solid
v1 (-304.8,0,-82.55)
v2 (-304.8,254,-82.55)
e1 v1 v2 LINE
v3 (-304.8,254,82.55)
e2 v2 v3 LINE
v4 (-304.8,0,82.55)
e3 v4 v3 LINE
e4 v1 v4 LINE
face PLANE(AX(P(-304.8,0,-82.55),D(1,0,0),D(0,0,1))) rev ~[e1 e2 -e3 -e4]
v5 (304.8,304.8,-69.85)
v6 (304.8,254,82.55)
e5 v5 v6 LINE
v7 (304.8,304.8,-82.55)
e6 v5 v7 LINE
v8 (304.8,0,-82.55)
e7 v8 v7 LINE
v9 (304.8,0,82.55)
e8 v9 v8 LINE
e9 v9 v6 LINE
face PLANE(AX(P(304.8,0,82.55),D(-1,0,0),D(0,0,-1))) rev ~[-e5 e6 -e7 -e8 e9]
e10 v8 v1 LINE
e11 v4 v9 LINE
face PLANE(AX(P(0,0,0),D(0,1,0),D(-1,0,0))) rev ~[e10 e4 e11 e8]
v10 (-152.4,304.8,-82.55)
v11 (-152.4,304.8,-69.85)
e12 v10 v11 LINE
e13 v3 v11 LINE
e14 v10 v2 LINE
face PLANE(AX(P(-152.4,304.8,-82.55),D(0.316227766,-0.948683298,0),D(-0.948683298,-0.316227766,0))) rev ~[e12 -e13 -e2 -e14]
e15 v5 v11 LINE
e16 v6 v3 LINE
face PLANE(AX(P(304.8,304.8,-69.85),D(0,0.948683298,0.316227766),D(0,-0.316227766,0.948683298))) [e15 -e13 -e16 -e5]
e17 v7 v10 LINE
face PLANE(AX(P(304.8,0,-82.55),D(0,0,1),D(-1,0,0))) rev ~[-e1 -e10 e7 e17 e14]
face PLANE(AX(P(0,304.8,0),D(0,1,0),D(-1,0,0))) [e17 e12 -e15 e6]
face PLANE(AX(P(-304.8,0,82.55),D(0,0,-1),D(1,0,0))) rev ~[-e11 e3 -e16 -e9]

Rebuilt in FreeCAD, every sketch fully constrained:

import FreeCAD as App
import Part
import Sketcher
from FreeCAD import Vector
Q = App.Units.Quantity


def add_polygon(sketch, points):
    """Adds a closed chain of lines whose ends are joined by coincident constraints."""
    first, n = sketch.GeometryCount, len(points)
    for a, b in zip(points, points[1:] + points[:1]):
        sketch.addGeometry(Part.LineSegment(App.Vector(*a, 0), App.Vector(*b, 0)), False)
    for i in range(n):
        sketch.addConstraint(Sketcher.Constraint("Coincident", first + i, 2, first + (i + 1) % n, 1))

doc = App.newDocument("Part")
body = doc.addObject("PartDesign::Body", "Body")

sketch1 = body.newObject("Sketcher::SketchObject", "Sketch")
sketch1.AttachmentSupport = (doc.getObject("XZ_Plane"), [""])
sketch1.MapMode = "FlatFace"
add_polygon(sketch1, [(305, 83), (305, -83), (-305, -83), (-305, 83)])
sketch1.addConstraint(Sketcher.Constraint("Vertical", 0))
sketch1.addConstraint(Sketcher.Constraint("Horizontal", 1))
sketch1.addConstraint(Sketcher.Constraint("Vertical", 2))
sketch1.addConstraint(Sketcher.Constraint("Horizontal", 3))
sketch1.addConstraint(Sketcher.Constraint("Symmetric", 0, 2, 2, 2, -1, 1))
sketch1.addConstraint(Sketcher.Constraint("DistanceX", 1, 2, 1, 1, Q("24 in")))
sketch1.addConstraint(Sketcher.Constraint("DistanceY", 0, 2, 0, 1, Q("6.5 in")))
pad1 = body.newObject("PartDesign::Pad", "Pad")
pad1.Profile = sketch1
pad1.Length = Q("12 in")
pad1.Reversed = True

sketch2 = body.newObject("Sketcher::SketchObject", "Sketch001")
sketch2.AttachmentSupport = (doc.getObject("YZ_Plane"), [""])
sketch2.MapMode = "FlatFace"
sketch2.AttachmentOffset = App.Placement(Vector(0, 0, 12 * 25.4), App.Rotation())
add_polygon(sketch2, [(254, 83), (305, -70), (305, 83)])
sketch2.addConstraint(Sketcher.Constraint("Vertical", 1))
sketch2.addConstraint(Sketcher.Constraint("Horizontal", 2))
sketch2.addConstraint(Sketcher.Constraint("DistanceX", 2, 2, 2, 1, Q("2 in")))
sketch2.addConstraint(Sketcher.Constraint("DistanceY", 1, 1, 1, 2, Q("6 in")))
sketch2.addConstraint(Sketcher.Constraint("DistanceX", -1, 1, 0, 2, Q("12 in")))
sketch2.addConstraint(Sketcher.Constraint("DistanceY", 0, 2, -1, 1, Q("2.75 in")))
pocket1 = body.newObject("PartDesign::Pocket", "Pocket")
pocket1.Profile = sketch2
pocket1.Type = "ThroughAll"

sketch3 = body.newObject("Sketcher::SketchObject", "Sketch002")
sketch3.AttachmentSupport = (doc.getObject("XY_Plane"), [""])
sketch3.MapMode = "FlatFace"
sketch3.AttachmentOffset = App.Placement(Vector(0, 0, -3.25 * 25.4), App.Rotation())
add_polygon(sketch3, [(-305, 305), (-152, 305), (-305, 254)])
sketch3.addConstraint(Sketcher.Constraint("Horizontal", 0))
sketch3.addConstraint(Sketcher.Constraint("Vertical", 2))
sketch3.addConstraint(Sketcher.Constraint("DistanceX", 0, 1, 0, 2, Q("6 in")))
sketch3.addConstraint(Sketcher.Constraint("DistanceY", 2, 1, 2, 2, Q("2 in")))
sketch3.addConstraint(Sketcher.Constraint("DistanceX", 0, 2, -1, 1, Q("6 in")))
sketch3.addConstraint(Sketcher.Constraint("DistanceY", -1, 1, 0, 2, Q("12 in")))
pocket2 = body.newObject("PartDesign::Pocket", "Pocket001")
pocket2.Profile = sketch3
pocket2.Type = "ThroughAll"
pocket2.Reversed = True

doc.recompute()
